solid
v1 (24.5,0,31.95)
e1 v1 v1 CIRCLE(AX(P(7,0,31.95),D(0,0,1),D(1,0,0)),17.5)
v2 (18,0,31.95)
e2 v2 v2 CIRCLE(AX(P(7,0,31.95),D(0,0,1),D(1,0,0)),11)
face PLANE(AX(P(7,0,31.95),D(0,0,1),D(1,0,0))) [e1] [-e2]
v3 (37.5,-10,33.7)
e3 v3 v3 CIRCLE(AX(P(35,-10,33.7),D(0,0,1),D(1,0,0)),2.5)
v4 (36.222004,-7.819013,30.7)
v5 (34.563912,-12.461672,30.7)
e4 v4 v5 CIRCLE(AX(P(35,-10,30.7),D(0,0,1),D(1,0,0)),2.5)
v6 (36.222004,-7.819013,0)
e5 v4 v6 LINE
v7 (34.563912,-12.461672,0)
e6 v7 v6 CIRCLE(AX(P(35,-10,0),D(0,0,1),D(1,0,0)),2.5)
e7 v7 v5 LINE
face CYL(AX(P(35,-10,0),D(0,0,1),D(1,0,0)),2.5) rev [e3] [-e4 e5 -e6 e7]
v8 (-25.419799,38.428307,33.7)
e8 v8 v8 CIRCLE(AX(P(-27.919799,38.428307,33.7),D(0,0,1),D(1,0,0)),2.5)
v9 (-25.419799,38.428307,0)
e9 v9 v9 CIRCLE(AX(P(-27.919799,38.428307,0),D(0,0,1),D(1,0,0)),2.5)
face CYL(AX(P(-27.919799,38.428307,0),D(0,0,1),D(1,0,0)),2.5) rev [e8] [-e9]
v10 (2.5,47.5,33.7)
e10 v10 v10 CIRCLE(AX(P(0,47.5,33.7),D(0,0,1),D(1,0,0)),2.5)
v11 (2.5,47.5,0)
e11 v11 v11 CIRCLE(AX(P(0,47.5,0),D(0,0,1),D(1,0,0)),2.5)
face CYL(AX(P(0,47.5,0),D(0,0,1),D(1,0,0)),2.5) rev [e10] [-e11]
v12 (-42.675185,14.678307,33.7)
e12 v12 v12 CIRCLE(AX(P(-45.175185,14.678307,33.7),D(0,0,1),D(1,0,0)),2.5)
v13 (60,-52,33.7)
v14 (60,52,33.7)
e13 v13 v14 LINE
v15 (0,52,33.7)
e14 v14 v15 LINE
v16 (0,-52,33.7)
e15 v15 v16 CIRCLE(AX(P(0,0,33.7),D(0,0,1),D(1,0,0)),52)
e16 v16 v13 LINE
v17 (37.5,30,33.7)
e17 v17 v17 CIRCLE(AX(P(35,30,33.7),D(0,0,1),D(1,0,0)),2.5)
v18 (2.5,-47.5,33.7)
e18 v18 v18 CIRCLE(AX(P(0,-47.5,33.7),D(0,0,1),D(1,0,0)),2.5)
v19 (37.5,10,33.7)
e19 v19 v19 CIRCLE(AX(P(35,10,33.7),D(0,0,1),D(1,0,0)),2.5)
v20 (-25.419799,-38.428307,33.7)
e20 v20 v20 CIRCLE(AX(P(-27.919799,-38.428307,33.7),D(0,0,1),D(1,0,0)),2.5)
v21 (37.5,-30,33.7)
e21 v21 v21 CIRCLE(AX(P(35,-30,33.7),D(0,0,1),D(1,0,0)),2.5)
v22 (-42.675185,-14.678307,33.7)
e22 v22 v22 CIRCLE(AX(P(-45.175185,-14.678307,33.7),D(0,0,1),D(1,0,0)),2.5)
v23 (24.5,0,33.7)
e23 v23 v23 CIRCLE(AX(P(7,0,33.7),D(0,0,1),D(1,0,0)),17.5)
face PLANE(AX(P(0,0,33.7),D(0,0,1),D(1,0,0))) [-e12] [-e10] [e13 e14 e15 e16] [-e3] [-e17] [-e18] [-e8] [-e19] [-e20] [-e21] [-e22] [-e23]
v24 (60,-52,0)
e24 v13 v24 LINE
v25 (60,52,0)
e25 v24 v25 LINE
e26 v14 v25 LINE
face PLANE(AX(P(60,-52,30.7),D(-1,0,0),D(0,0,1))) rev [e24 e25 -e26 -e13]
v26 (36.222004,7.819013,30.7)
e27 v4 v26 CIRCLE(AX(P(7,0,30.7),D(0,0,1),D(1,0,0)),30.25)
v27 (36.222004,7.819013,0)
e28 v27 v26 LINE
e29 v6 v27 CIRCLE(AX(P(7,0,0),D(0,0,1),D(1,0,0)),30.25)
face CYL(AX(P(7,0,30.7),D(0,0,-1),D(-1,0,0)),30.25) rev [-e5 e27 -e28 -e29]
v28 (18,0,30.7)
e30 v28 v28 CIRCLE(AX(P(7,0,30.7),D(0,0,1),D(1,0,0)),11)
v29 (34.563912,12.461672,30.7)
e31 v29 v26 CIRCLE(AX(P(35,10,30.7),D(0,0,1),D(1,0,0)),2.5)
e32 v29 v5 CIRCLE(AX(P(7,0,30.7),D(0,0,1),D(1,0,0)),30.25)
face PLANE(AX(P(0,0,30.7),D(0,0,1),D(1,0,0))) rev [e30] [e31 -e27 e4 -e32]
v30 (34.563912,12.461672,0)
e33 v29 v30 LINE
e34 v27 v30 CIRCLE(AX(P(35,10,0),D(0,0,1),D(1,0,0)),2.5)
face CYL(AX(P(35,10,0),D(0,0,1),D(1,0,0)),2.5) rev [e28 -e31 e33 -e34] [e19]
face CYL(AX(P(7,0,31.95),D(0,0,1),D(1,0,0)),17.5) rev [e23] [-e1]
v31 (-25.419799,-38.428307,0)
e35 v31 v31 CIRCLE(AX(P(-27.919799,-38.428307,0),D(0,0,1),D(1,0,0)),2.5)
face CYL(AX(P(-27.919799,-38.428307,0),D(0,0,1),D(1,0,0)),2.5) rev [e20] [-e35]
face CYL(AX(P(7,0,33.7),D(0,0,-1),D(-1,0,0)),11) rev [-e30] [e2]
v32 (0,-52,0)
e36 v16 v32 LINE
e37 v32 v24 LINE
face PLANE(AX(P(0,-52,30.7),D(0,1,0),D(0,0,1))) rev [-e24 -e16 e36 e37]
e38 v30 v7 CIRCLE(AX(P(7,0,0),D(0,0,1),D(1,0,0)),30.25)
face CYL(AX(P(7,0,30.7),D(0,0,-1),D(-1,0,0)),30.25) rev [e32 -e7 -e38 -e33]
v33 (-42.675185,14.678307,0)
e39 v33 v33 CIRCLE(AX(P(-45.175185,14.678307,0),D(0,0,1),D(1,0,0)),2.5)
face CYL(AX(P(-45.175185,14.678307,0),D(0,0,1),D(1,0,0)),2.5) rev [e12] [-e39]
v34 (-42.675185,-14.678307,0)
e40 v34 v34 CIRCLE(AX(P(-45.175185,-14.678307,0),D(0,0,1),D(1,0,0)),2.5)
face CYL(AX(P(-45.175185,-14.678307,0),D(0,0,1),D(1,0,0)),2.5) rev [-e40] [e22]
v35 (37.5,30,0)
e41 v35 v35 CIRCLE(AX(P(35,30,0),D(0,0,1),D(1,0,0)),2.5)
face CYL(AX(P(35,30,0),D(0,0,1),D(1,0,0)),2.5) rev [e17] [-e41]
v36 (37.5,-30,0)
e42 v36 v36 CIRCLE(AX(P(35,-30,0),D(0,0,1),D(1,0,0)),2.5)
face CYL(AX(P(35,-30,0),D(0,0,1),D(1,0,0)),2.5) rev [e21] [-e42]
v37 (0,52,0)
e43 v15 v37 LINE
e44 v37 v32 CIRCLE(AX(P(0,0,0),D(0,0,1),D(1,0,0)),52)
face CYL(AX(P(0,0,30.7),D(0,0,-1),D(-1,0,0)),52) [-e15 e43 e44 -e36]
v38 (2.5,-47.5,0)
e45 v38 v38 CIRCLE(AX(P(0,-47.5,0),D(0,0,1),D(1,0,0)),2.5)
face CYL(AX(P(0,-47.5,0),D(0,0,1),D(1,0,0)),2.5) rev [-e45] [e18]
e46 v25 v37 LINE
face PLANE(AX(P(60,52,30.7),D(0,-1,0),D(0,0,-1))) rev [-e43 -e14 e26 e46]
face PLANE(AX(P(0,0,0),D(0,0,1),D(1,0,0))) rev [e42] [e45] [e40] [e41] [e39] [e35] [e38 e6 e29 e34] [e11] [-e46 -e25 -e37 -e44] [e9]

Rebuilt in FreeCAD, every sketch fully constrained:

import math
import FreeCAD as App
import Part
import Sketcher
from FreeCAD import Vector

doc = App.newDocument("Part")
body = doc.addObject("PartDesign::Body", "Body")

# Sketch on XY plane
sketch1 = doc.addObject("Sketcher::SketchObject", "Sketch")
body.addObject(sketch1)
sketch1.AttachmentSupport = (doc.XY_Plane, [""])
sketch1.MapMode = "FlatFace"
sketch1.addGeometry([
    Part.LineSegment(Vector(0, -52, 0), Vector(60, -52, 0)),  # 0
    Part.LineSegment(Vector(60, -52, 0), Vector(60, 52, 0)),  # 1
    Part.LineSegment(Vector(60, 52, 0), Vector(0, 52, 0)),  # 2
    Part.ArcOfCircle(Part.Circle(Vector(0, 0, 0), Vector(0, 0, 1), 52), math.radians(90), math.radians(270)),  # 3
    Part.Circle(Vector(7, 0, 0), Vector(0, 0, 1), 30),  # 4
], False)
sketch1.addConstraint([
    Sketcher.Constraint("Coincident", 0, 2, 1, 1),
    Sketcher.Constraint("Coincident", 1, 2, 2, 1),
    Sketcher.Constraint("Tangent", 2, 2, 3, 1),
    Sketcher.Constraint("Tangent", 3, 2, 0, 1),
    Sketcher.Constraint("Horizontal", 0),
    Sketcher.Constraint("Vertical", 1),
    Sketcher.Constraint("Horizontal", 2),
    Sketcher.Constraint("Coincident", 3, 3, -1, 1),
    Sketcher.Constraint("PointOnObject", 4, 3, -1),
    Sketcher.Constraint("Radius", 3, 52.0),
    Sketcher.Constraint("Diameter", 4, 60.5),
    Sketcher.Constraint("DistanceX", 0, 1, 0, 2, 60.0),
    Sketcher.Constraint("DistanceX", -1, 1, 4, 3, 7.0),
])
pad1 = doc.addObject("PartDesign::Pad", "Pad")
body.addObject(pad1)
pad1.Profile = sketch1
pad1.Length = 30.7

# Sketch on XY plane
sketch2 = doc.addObject("Sketcher::SketchObject", "Sketch001")
body.addObject(sketch2)
sketch2.AttachmentSupport = (doc.XY_Plane, [""])
sketch2.MapMode = "FlatFace"
sketch2.AttachmentOffset = App.Placement(Vector(0, 0, 30.7), App.Rotation())
sketch2.addGeometry([
    Part.LineSegment(Vector(0, -52, 0), Vector(60, -52, 0)),  # 0
    Part.LineSegment(Vector(60, -52, 0), Vector(60, 52, 0)),  # 1
    Part.LineSegment(Vector(60, 52, 0), Vector(0, 52, 0)),  # 2
    Part.ArcOfCircle(Part.Circle(Vector(0, 0, 0), Vector(0, 0, 1), 52), math.radians(90), math.radians(270)),  # 3
    Part.Circle(Vector(7, 0, 0), Vector(0, 0, 1), 11),  # 4
], False)
sketch2.addConstraint([
    Sketcher.Constraint("Coincident", 0, 2, 1, 1),
    Sketcher.Constraint("Coincident", 1, 2, 2, 1),
    Sketcher.Constraint("Tangent", 2, 2, 3, 1),
    Sketcher.Constraint("Tangent", 3, 2, 0, 1),
    Sketcher.Constraint("Horizontal", 0),
    Sketcher.Constraint("Vertical", 1),
    Sketcher.Constraint("Horizontal", 2),
    Sketcher.Constraint("Coincident", 3, 3, -1, 1),
    Sketcher.Constraint("PointOnObject", 4, 3, -1),
    Sketcher.Constraint("Diameter", 4, 22.0),
    Sketcher.Constraint("Radius", 3, 52.0),
    Sketcher.Constraint("DistanceX", 0, 1, 0, 2, 60.0),
    Sketcher.Constraint("DistanceX", -1, 1, 4, 3, 7.0),
])
pad2 = doc.addObject("PartDesign::Pad", "Pad001")
body.addObject(pad2)
pad2.Profile = sketch2
pad2.Length = 3

# Sketch on XY plane
sketch3 = doc.addObject("Sketcher::SketchObject", "Sketch002")
body.addObject(sketch3)
sketch3.AttachmentSupport = (doc.XY_Plane, [""])
sketch3.MapMode = "FlatFace"
sketch3.AttachmentOffset = App.Placement(Vector(0, 0, 33.7), App.Rotation())
sketch3.addGeometry(Part.Circle(Vector(7, 0, 0), Vector(0, 0, 1), 18), False)
sketch3.addConstraint([
    Sketcher.Constraint("PointOnObject", 0, 3, -1),
    Sketcher.Constraint("Diameter", 0, 35.0),
    Sketcher.Constraint("DistanceX", -1, 1, 0, 3, 7.0),
])
pocket1 = doc.addObject("PartDesign::Pocket", "Pocket")
body.addObject(pocket1)
pocket1.Profile = sketch3
pocket1.Length = 1.75

# Sketch on XY plane
sketch4 = doc.addObject("Sketcher::SketchObject", "Sketch003")
body.addObject(sketch4)
sketch4.AttachmentSupport = (doc.XY_Plane, [""])
sketch4.MapMode = "FlatFace"
sketch4.AttachmentOffset = App.Placement(Vector(0, 0, 33.7), App.Rotation())
sketch4.addGeometry([
    Part.Circle(Vector(35, 30, 0), Vector(0, 0, 1), 2.5),  # 0
    Part.Circle(Vector(0, 47.5, 0), Vector(0, 0, 1), 2.5),  # 1
    Part.Circle(Vector(-27.9, 38.4, 0), Vector(0, 0, 1), 2.5),  # 2
    Part.Circle(Vector(-45.2, 14.7, 0), Vector(0, 0, 1), 2.5),  # 3
    Part.Circle(Vector(-45.2, -14.7, 0), Vector(0, 0, 1), 2.5),  # 4
    Part.Circle(Vector(-27.9, -38.4, 0), Vector(0, 0, 1), 2.5),  # 5
    Part.Circle(Vector(0, -47.5, 0), Vector(0, 0, 1), 2.5),  # 6
    Part.Circle(Vector(35, 10, 0), Vector(0, 0, 1), 2.5),  # 7
    Part.Circle(Vector(35, -10, 0), Vector(0, 0, 1), 2.5),  # 8
    Part.Circle(Vector(35, -30, 0), Vector(0, 0, 1), 2.5),  # 9
], False)
sketch4.addConstraint([
    Sketcher.Constraint("Equal", 0, 1),
    Sketcher.Constraint("Equal", 1, 2),
    Sketcher.Constraint("Equal", 2, 3),
    Sketcher.Constraint("Equal", 3, 4),
    Sketcher.Constraint("Equal", 4, 5),
    Sketcher.Constraint("Equal", 5, 6),
    Sketcher.Constraint("Equal", 6, 7),
    Sketcher.Constraint("Equal", 7, 8),
    Sketcher.Constraint("Equal", 8, 9),
    Sketcher.Constraint("Symmetric", 1, 3, 6, 3, -1, 1),
    Sketcher.Constraint("Symmetric", 3, 3, 4, 3, -1),
    Sketcher.Constraint("Symmetric", 2, 3, 5, 3, -1),
    Sketcher.Constraint("Symmetric", 7, 3, 8, 3, -1),
    Sketcher.Constraint("Symmetric", 0, 3, 9, 3, -1),
    Sketcher.Constraint("PointOnObject", 1, 3, -2),
    Sketcher.Constraint("Vertical", 0, 3, 7, 3),
    Sketcher.Constraint("Diameter", 0, 5.0),
    Sketcher.Constraint("DistanceX", -1, 1, 0, 3, 35.0),
    Sketcher.Constraint("DistanceY", -1, 1, 0, 3, 30.0),
    Sketcher.Constraint("DistanceY", -1, 1, 7, 3, 10.0),
    Sketcher.Constraint("DistanceY", -1, 1, 1, 3, 47.5),
    Sketcher.Constraint("DistanceY", 3, 3, 2, 3, 23.75),
    Sketcher.Constraint("DistanceX", 2, 3, -1, 1, 27.919799),
    Sketcher.Constraint("DistanceY", -1, 1, 2, 3, 38.428307),
    Sketcher.Constraint("DistanceX", 3, 3, -1, 1, 45.175185),
])
pocket2 = doc.addObject("PartDesign::Pocket", "Pocket001")
body.addObject(pocket2)
pocket2.Profile = sketch4
pocket2.Type = "ThroughAll"

doc.recompute()
